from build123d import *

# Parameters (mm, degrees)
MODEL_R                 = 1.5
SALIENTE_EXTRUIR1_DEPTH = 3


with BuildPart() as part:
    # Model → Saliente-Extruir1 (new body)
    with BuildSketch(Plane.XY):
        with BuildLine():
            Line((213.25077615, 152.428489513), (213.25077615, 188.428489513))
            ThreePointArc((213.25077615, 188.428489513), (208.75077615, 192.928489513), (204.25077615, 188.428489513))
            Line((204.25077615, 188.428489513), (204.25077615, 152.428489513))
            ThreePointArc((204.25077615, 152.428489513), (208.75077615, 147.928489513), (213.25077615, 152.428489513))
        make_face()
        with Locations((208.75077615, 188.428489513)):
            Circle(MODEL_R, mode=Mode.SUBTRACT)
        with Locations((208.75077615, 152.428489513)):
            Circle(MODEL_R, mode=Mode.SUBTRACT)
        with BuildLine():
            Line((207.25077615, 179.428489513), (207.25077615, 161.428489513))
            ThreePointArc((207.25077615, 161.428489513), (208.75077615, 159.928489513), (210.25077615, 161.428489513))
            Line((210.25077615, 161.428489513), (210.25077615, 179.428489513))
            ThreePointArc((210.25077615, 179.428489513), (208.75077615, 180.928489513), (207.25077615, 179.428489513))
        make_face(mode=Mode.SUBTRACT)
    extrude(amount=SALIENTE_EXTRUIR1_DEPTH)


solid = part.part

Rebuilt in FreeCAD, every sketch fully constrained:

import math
import FreeCAD as App
import Part
import Sketcher
Q = App.Units.Quantity

doc = App.newDocument("Part")
body = doc.addObject("PartDesign::Body", "Body")

# Sketch on XY plane
sketch1 = body.newObject("Sketcher::SketchObject", "Sketch")
sketch1.AttachmentSupport = (doc.getObject("XY_Plane"), [""])
sketch1.MapMode = "FlatFace"
sketch1.addGeometry([
    Part.LineSegment(App.Vector(213.3, 152.4, 0), App.Vector(213.3, 188.4, 0)),  # 0
    Part.ArcOfCircle(Part.Circle(App.Vector(208.8, 188.4, 0), App.Vector(0, 0, 1), 4.5), math.radians(0), math.radians(180)),  # 1
    Part.LineSegment(App.Vector(204.3, 188.4, 0), App.Vector(204.3, 152.4, 0)),  # 2
    Part.ArcOfCircle(Part.Circle(App.Vector(208.8, 152.4, 0), App.Vector(0, 0, 1), 4.5), math.radians(180), math.radians(360)),  # 3
    Part.Circle(App.Vector(208.8, 152.4, 0), App.Vector(0, 0, 1), 1.5),  # 4
    Part.LineSegment(App.Vector(207.3, 161.4, 0), App.Vector(207.3, 179.4, 0)),  # 5
    Part.ArcOfCircle(Part.Circle(App.Vector(208.8, 179.4, 0), App.Vector(0, 0, 1), 1.5), math.radians(0), math.radians(180)),  # 6
    Part.LineSegment(App.Vector(210.3, 179.4, 0), App.Vector(210.3, 161.4, 0)),  # 7
    Part.ArcOfCircle(Part.Circle(App.Vector(208.8, 161.4, 0), App.Vector(0, 0, 1), 1.5), math.radians(180), math.radians(360)),  # 8
    Part.Circle(App.Vector(208.8, 188.4, 0), App.Vector(0, 0, 1), 1.5),  # 9
], False)
sketch1.addConstraint([
    Sketcher.Constraint("Tangent", 0, 2, 1, 1),
    Sketcher.Constraint("Tangent", 1, 2, 2, 1),
    Sketcher.Constraint("Tangent", 2, 2, 3, 1),
    Sketcher.Constraint("Tangent", 3, 2, 0, 1),
    Sketcher.Constraint("Tangent", 5, 2, 6, 2),
    Sketcher.Constraint("Tangent", 6, 1, 7, 1),
    Sketcher.Constraint("Tangent", 7, 2, 8, 2),
    Sketcher.Constraint("Tangent", 8, 1, 5, 1),
    Sketcher.Constraint("Vertical", 0),
    Sketcher.Constraint("Vertical", 2),
    Sketcher.Constraint("Vertical", 5),
    Sketcher.Constraint("Vertical", 7),
    Sketcher.Constraint("Coincident", 4, 3, 3, 3),
    Sketcher.Constraint("Coincident", 9, 3, 1, 3),
    Sketcher.Constraint("Equal", 4, 6),
    Sketcher.Constraint("Equal", 8, 9),
    Sketcher.Constraint("Vertical", 4, 3, 6, 3),
    Sketcher.Constraint("Diameter", 4, Q("3 mm")),
    Sketcher.Constraint("Radius", 1, Q("4.5 mm")),
    Sketcher.Constraint("DistanceY", 0, 1, 0, 2, Q("36 mm")),
    Sketcher.Constraint("DistanceY", 5, 1, 5, 2, Q("18 mm")),
    Sketcher.Constraint("DistanceY", 6, 3, 1, 3, Q("9 mm")),
    Sketcher.Constraint("DistanceY", -1, 1, 1, 3, Q("188.42849 mm")),
    Sketcher.Constraint("DistanceX", -1, 1, 1, 3, Q("208.750776 mm")),
])
pad1 = body.newObject("PartDesign::Pad", "Pad")
pad1.Profile = sketch1
pad1.Length = 3

doc.recompute()
